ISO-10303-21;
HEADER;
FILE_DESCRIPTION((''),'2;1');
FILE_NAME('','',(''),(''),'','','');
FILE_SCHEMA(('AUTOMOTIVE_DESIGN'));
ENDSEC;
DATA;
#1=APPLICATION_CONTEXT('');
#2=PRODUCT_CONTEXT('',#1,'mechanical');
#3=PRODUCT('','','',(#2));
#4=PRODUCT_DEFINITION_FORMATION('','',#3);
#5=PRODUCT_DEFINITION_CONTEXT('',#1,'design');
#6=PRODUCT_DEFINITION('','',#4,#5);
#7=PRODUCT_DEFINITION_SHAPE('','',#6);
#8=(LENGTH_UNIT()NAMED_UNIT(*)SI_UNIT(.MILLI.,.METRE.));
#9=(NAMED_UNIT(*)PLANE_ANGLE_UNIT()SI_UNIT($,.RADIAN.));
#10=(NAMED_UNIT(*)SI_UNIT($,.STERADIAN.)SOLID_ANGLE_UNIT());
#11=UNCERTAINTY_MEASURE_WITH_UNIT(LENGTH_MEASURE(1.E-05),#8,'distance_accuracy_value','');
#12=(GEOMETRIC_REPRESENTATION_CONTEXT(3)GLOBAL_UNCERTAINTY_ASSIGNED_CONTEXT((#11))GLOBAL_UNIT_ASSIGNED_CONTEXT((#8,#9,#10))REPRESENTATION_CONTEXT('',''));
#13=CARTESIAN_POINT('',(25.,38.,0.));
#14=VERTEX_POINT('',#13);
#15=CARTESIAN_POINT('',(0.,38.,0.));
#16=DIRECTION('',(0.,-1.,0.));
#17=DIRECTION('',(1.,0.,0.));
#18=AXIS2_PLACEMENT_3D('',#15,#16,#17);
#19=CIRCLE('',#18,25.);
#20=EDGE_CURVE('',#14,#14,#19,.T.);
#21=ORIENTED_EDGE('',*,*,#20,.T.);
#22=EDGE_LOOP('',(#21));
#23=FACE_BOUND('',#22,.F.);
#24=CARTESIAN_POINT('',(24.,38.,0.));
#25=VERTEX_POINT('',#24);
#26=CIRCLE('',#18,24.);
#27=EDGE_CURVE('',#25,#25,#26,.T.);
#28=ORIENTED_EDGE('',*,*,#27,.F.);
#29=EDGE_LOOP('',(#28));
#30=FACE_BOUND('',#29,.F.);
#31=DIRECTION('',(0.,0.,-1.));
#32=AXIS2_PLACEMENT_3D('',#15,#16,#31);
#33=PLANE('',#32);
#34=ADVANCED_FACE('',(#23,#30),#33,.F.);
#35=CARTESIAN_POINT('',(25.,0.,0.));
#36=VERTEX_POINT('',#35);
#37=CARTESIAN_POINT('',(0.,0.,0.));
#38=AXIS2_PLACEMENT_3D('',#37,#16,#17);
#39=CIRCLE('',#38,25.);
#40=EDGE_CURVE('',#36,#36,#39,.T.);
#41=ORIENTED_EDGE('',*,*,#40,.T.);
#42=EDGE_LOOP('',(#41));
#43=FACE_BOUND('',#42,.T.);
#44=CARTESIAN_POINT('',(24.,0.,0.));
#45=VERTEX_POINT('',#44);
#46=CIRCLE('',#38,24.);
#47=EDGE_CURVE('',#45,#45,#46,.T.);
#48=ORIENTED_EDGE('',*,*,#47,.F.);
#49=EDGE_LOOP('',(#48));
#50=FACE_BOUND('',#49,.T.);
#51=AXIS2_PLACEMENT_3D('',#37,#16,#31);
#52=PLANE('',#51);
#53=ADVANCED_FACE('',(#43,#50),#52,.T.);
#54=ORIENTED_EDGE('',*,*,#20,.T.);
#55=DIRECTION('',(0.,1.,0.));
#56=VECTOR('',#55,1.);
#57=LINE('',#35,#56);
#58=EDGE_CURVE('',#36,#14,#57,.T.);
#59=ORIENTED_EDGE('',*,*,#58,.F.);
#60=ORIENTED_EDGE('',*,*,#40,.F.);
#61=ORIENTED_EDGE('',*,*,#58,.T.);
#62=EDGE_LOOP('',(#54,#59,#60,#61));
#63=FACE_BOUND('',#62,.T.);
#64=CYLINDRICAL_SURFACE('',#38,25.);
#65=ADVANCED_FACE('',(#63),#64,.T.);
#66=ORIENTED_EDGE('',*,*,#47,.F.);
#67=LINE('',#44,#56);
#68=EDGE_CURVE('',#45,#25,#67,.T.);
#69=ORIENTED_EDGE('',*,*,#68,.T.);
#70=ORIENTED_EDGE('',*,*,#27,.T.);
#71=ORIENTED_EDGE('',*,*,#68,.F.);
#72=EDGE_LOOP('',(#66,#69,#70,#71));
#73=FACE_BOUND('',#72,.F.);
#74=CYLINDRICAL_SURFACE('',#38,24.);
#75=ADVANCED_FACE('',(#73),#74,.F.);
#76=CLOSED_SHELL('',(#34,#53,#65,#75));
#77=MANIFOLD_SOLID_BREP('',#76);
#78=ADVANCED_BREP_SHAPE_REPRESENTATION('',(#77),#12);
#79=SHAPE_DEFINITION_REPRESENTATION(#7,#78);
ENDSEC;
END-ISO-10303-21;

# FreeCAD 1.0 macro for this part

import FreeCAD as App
import Part
import Sketcher

V = App.Vector
Q = App.Units.Quantity

doc = App.newDocument("Part")
body = doc.addObject("PartDesign::Body", "Body")

# Sketch on XZ plane
sketch1 = doc.addObject("Sketcher::SketchObject", "Sketch")
body.addObject(sketch1)
sketch1.AttachmentSupport = (doc.XZ_Plane, [""])
sketch1.MapMode = "FlatFace"
sketch1.addGeometry(Part.Circle(V(0, 0, 0), V(0, 0, 1), 25), False)
sketch1.addGeometry(Part.Circle(V(0, 0, 0), V(0, 0, 1), 24), False)
sketch1.addConstraint(Sketcher.Constraint("Coincident", 0, 3, -1, 1))
sketch1.addConstraint(Sketcher.Constraint("Coincident", 1, 3, -1, 1))
sketch1.addConstraint(Sketcher.Constraint("Diameter", 0, Q("50 mm")))
sketch1.addConstraint(Sketcher.Constraint("Diameter", 1, Q("48 mm")))
pad1 = doc.addObject("PartDesign::Pad", "Pad")
body.addObject(pad1)
pad1.Profile = sketch1
pad1.Length = 38
pad1.Reversed = True

doc.recompute()
